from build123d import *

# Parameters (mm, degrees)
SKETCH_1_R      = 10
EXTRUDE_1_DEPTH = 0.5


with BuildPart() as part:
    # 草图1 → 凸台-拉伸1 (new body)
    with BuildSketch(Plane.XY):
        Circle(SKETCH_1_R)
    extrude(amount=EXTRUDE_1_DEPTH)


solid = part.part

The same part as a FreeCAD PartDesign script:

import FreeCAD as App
import Part
import Sketcher
from FreeCAD import Vector
Q = App.Units.Quantity

doc = App.newDocument("Part")
body = doc.addObject("PartDesign::Body", "Body")

# Sketch on XY plane
sketch1 = body.newObject("Sketcher::SketchObject", "Sketch")
sketch1.AttachmentSupport = (doc.getObject("XY_Plane"), [""])
sketch1.MapMode = "FlatFace"
sketch1.addGeometry(Part.Circle(Vector(0, 0, 0), Vector(0, 0, 1), 10), False)
sketch1.addConstraint([
    Sketcher.Constraint("Coincident", 0, 3, -1, 1),
    Sketcher.Constraint("Diameter", 0, Q("20 mm")),
])
pad1 = body.newObject("PartDesign::Pad", "Pad")
pad1.Profile = sketch1
pad1.Length = 0.5

doc.recompute()
